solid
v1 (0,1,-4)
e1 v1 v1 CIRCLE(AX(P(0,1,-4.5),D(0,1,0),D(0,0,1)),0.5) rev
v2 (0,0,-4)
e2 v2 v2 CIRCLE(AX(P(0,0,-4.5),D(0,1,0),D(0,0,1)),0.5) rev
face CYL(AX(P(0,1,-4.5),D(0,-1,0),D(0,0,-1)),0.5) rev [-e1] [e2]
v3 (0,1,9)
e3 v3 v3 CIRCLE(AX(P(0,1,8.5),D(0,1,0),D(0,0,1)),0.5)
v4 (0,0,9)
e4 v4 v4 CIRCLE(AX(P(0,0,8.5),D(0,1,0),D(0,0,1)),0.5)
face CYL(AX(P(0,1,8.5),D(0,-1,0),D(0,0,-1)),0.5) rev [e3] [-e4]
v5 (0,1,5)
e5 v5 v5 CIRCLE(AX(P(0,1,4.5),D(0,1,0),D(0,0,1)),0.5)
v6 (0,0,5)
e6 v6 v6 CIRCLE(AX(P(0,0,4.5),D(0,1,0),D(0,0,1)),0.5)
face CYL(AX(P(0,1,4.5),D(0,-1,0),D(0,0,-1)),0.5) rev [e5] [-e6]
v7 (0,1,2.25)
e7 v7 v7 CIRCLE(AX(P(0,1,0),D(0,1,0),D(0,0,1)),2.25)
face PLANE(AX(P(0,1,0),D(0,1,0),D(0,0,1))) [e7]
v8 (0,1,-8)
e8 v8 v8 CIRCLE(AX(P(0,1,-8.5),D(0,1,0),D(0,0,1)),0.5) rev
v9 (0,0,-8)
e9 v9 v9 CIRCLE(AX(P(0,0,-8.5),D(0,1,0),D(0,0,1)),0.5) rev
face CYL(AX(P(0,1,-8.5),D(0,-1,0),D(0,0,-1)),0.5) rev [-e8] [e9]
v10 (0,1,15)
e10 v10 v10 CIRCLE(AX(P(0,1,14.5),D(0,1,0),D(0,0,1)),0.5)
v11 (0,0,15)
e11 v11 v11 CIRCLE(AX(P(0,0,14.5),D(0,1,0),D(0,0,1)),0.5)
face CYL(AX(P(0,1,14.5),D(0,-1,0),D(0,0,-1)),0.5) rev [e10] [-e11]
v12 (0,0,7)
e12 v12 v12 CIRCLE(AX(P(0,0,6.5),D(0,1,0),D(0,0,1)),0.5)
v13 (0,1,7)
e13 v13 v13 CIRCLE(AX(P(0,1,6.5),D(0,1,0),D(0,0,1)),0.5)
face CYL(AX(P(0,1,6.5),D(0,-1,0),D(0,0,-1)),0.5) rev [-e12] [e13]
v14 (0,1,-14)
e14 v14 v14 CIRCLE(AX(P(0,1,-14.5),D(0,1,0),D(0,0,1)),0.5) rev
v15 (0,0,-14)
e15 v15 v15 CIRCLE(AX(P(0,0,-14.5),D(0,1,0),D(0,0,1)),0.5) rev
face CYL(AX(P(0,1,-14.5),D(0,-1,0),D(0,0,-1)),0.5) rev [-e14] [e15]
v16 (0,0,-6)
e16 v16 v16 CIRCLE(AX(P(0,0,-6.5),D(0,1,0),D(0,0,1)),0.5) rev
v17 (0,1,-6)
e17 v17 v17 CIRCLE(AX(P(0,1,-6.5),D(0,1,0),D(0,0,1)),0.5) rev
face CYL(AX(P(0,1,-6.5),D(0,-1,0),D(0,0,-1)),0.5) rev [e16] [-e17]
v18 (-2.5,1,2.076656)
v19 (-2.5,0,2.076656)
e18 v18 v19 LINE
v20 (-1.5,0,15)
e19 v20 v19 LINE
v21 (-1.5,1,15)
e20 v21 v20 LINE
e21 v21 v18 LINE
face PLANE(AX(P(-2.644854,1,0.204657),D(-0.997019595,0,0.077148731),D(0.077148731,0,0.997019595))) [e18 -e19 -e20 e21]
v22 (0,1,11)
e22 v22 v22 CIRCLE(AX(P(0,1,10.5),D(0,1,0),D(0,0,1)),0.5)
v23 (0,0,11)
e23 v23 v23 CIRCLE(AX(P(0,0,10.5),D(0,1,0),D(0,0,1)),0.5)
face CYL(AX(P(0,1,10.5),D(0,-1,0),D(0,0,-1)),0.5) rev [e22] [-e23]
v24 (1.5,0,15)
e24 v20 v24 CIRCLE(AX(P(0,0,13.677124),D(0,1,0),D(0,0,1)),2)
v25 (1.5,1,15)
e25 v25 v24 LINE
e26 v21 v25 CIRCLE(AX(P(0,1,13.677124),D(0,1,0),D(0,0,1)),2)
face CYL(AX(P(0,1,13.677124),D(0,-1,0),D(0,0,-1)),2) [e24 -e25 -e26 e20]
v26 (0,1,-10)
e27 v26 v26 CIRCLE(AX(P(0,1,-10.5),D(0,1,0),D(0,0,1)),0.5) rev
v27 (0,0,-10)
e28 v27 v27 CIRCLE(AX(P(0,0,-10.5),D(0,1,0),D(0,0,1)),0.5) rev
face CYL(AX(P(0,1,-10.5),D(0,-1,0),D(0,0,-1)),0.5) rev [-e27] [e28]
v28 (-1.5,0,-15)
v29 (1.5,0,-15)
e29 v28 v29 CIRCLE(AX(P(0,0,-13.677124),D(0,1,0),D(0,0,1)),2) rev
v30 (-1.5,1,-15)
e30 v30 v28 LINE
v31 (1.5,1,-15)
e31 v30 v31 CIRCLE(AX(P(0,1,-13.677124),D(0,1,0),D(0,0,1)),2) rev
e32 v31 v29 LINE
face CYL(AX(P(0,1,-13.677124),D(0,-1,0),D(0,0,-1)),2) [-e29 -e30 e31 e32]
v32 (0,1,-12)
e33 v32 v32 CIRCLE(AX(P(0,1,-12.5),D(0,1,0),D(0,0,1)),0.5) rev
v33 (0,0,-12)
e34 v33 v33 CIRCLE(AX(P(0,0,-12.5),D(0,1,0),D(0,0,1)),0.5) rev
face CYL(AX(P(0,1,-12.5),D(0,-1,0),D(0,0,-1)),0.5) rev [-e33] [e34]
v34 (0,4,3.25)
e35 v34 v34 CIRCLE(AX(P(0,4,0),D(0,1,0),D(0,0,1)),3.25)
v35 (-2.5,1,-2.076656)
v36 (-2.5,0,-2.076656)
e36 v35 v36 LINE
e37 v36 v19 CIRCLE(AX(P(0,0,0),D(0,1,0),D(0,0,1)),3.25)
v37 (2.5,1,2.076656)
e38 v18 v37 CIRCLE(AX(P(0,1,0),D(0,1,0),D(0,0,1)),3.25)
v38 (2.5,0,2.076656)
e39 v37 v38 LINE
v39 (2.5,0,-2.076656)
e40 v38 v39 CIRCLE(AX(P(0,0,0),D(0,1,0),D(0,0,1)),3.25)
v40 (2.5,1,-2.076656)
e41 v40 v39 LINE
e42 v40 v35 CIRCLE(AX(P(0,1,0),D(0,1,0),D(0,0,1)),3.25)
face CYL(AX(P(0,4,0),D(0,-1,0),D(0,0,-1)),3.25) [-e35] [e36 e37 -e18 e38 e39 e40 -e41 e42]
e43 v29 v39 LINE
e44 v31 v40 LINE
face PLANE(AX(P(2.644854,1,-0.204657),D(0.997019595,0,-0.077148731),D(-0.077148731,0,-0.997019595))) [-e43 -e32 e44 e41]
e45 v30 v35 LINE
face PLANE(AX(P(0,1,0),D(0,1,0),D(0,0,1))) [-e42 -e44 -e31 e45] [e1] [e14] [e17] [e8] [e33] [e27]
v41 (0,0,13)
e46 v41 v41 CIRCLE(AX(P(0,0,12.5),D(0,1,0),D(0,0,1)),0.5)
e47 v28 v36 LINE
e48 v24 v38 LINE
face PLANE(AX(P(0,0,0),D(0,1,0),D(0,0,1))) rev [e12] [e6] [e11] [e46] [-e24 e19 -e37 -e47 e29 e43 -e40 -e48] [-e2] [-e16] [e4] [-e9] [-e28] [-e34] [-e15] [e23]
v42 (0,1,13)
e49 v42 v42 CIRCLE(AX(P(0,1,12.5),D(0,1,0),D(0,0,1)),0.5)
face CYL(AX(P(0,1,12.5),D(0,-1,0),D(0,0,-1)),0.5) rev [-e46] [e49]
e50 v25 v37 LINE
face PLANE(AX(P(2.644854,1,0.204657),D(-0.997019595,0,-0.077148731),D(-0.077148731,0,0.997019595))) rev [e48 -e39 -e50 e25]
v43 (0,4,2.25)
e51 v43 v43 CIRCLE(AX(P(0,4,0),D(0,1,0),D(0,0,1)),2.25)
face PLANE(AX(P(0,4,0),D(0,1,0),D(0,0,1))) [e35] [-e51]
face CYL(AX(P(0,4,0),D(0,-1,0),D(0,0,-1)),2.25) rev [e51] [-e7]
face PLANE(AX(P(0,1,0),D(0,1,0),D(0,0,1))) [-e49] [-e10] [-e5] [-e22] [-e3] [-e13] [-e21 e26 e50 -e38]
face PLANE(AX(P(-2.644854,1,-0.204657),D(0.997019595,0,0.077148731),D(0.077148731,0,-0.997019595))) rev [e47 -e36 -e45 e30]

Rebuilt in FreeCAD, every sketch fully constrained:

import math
import FreeCAD as App
import Part
import Sketcher
from FreeCAD import Vector
Q = App.Units.Quantity

doc = App.newDocument("Part")
body = doc.addObject("PartDesign::Body", "Body")

# Sketch on XZ plane
sketch1 = body.newObject("Sketcher::SketchObject", "Sketch")
sketch1.AttachmentSupport = (doc.getObject("XZ_Plane"), [""])
sketch1.MapMode = "FlatFace"
sketch1.addGeometry(Part.Circle(Vector(0, 0, 0), Vector(0, 0, 1), 3.2), False)
sketch1.addGeometry(Part.Circle(Vector(0, 0, 0), Vector(0, 0, 1), 2.2), False)
sketch1.addConstraint(Sketcher.Constraint("Coincident", 0, 3, -1, 1))
sketch1.addConstraint(Sketcher.Constraint("Coincident", 1, 3, -1, 1))
sketch1.addConstraint(Sketcher.Constraint("Diameter", 0, Q("6.5 mm")))
sketch1.addConstraint(Sketcher.Constraint("Diameter", 1, Q("4.5 mm")))
pad1 = body.newObject("PartDesign::Pad", "Pad")
pad1.Profile = sketch1
pad1.Length = 4
pad1.Reversed = True

# Sketch on XZ plane
sketch2 = body.newObject("Sketcher::SketchObject", "Sketch001")
sketch2.AttachmentSupport = (doc.getObject("XZ_Plane"), [""])
sketch2.MapMode = "FlatFace"
sketch2.addGeometry(Part.Circle(Vector(0, 0, 0), Vector(0, 0, 1), 2.2), False)
sketch2.addConstraint(Sketcher.Constraint("Coincident", 0, 3, -1, 1))
sketch2.addConstraint(Sketcher.Constraint("Diameter", 0, Q("4.5 mm")))
pad2 = body.newObject("PartDesign::Pad", "Pad001")
pad2.Profile = sketch2
pad2.Length = 1
pad2.Reversed = True

# Sketch on XZ plane
sketch3 = body.newObject("Sketcher::SketchObject", "Sketch002")
sketch3.AttachmentSupport = (doc.getObject("XZ_Plane"), [""])
sketch3.MapMode = "FlatFace"
sketch3.addGeometry(Part.ArcOfCircle(Part.Circle(Vector(0, -13.7, 0), Vector(0, 0, 1), 2), math.radians(-139), math.radians(-41)), False)
sketch3.addGeometry(Part.LineSegment(Vector(-1.5, -15, 0), Vector(-2.5, -2.1, 0)), False)
sketch3.addGeometry(Part.ArcOfCircle(Part.Circle(Vector(0, 0, 0), Vector(0, 0, 1), 3.2), math.radians(-140), math.radians(-40)), False)
sketch3.addGeometry(Part.LineSegment(Vector(2.5, -2.1, 0), Vector(1.5, -15, 0)), False)
sketch3.addGeometry(Part.Circle(Vector(0, -4.5, 0), Vector(0, 0, 1), 0.5), False)
sketch3.addGeometry(Part.Circle(Vector(0, -6.5, 0), Vector(0, 0, 1), 0.5), False)
sketch3.addGeometry(Part.Circle(Vector(0, -8.5, 0), Vector(0, 0, 1), 0.5), False)
sketch3.addGeometry(Part.Circle(Vector(0, -10.5, 0), Vector(0, 0, 1), 0.5), False)
sketch3.addGeometry(Part.Circle(Vector(0, -12.5, 0), Vector(0, 0, 1), 0.5), False)
sketch3.addGeometry(Part.Circle(Vector(0, -14.5, 0), Vector(0, 0, 1), 0.5), False)
sketch3.addConstraint(Sketcher.Constraint("Coincident", 0, 1, 1, 1))
sketch3.addConstraint(Sketcher.Constraint("Coincident", 1, 2, 2, 1))
sketch3.addConstraint(Sketcher.Constraint("Coincident", 2, 2, 3, 1))
sketch3.addConstraint(Sketcher.Constraint("Coincident", 3, 2, 0, 2))
sketch3.addConstraint(Sketcher.Constraint("Coincident", 2, 3, -1, 1))
sketch3.addConstraint(Sketcher.Constraint("Equal", 4, 5))
sketch3.addConstraint(Sketcher.Constraint("Equal", 5, 6))
sketch3.addConstraint(Sketcher.Constraint("Equal", 6, 7))
sketch3.addConstraint(Sketcher.Constraint("Equal", 7, 8))
sketch3.addConstraint(Sketcher.Constraint("Equal", 8, 9))
sketch3.addConstraint(Sketcher.Constraint("Symmetric", 0, 1, 3, 2, -2))
sketch3.addConstraint(Sketcher.Constraint("PointOnObject", 4, 3, -2))
sketch3.addConstraint(Sketcher.Constraint("PointOnObject", 5, 3, -2))
sketch3.addConstraint(Sketcher.Constraint("PointOnObject", 6, 3, -2))
sketch3.addConstraint(Sketcher.Constraint("PointOnObject", 7, 3, -2))
sketch3.addConstraint(Sketcher.Constraint("PointOnObject", 8, 3, -2))
sketch3.addConstraint(Sketcher.Constraint("PointOnObject", 9, 3, -2))
sketch3.addConstraint(Sketcher.Constraint("Horizontal", 1, 2, 2, 2))
sketch3.addConstraint(Sketcher.Constraint("Diameter", 4, Q("1 mm")))
sketch3.addConstraint(Sketcher.Constraint("Radius", 0, Q("2 mm")))
sketch3.addConstraint(Sketcher.Constraint("Radius", 2, Q("3.25 mm")))
sketch3.addConstraint(Sketcher.Constraint("DistanceY", 0, 1, -1, 1, Q("15 mm")))
sketch3.addConstraint(Sketcher.Constraint("DistanceY", 5, 3, 4, 3, Q("2 mm")))
sketch3.addConstraint(Sketcher.Constraint("DistanceY", 6, 3, 5, 3, Q("2 mm")))
sketch3.addConstraint(Sketcher.Constraint("DistanceY", 7, 3, 6, 3, Q("2 mm")))
sketch3.addConstraint(Sketcher.Constraint("DistanceY", 8, 3, 7, 3, Q("2 mm")))
sketch3.addConstraint(Sketcher.Constraint("DistanceY", 9, 3, 8, 3, Q("2 mm")))
sketch3.addConstraint(Sketcher.Constraint("DistanceX", 1, 2, 2, 2, Q("5 mm")))
sketch3.addConstraint(Sketcher.Constraint("DistanceX", 0, 1, 3, 2, Q("3 mm")))
sketch3.addConstraint(Sketcher.Constraint("DistanceY", 4, 3, -1, 1, Q("4.5 mm")))
pad3 = body.newObject("PartDesign::Pad", "Pad002")
pad3.Profile = sketch3
pad3.Length = 1
pad3.Reversed = True

# Sketch on XZ plane
sketch4 = body.newObject("Sketcher::SketchObject", "Sketch003")
sketch4.AttachmentSupport = (doc.getObject("XZ_Plane"), [""])
sketch4.MapMode = "FlatFace"
sketch4.addGeometry(Part.ArcOfCircle(Part.Circle(Vector(0, 0, 0), Vector(0, 0, 1), 3.2), math.radians(40), math.radians(140)), False)
sketch4.addGeometry(Part.LineSegment(Vector(-2.5, 2.1, 0), Vector(-1.5, 15, 0)), False)
sketch4.addGeometry(Part.ArcOfCircle(Part.Circle(Vector(0, 13.7, 0), Vector(0, 0, 1), 2), math.radians(41), math.radians(139)), False)
sketch4.addGeometry(Part.LineSegment(Vector(1.5, 15, 0), Vector(2.5, 2.1, 0)), False)
sketch4.addGeometry(Part.Circle(Vector(0, 14.5, 0), Vector(0, 0, 1), 0.5), False)
sketch4.addGeometry(Part.Circle(Vector(0, 12.5, 0), Vector(0, 0, 1), 0.5), False)
sketch4.addGeometry(Part.Circle(Vector(0, 10.5, 0), Vector(0, 0, 1), 0.5), False)
sketch4.addGeometry(Part.Circle(Vector(0, 8.5, 0), Vector(0, 0, 1), 0.5), False)
sketch4.addGeometry(Part.Circle(Vector(0, 6.5, 0), Vector(0, 0, 1), 0.5), False)
sketch4.addGeometry(Part.Circle(Vector(0, 4.5, 0), Vector(0, 0, 1), 0.5), False)
sketch4.addConstraint(Sketcher.Constraint("Coincident", 0, 2, 1, 1))
sketch4.addConstraint(Sketcher.Constraint("Coincident", 1, 2, 2, 2))
sketch4.addConstraint(Sketcher.Constraint("Coincident", 2, 1, 3, 1))
sketch4.addConstraint(Sketcher.Constraint("Coincident", 3, 2, 0, 1))
sketch4.addConstraint(Sketcher.Constraint("Coincident", 0, 3, -1, 1))
sketch4.addConstraint(Sketcher.Constraint("Equal", 4, 5))
sketch4.addConstraint(Sketcher.Constraint("Equal", 5, 6))
sketch4.addConstraint(Sketcher.Constraint("Equal", 6, 7))
sketch4.addConstraint(Sketcher.Constraint("Equal", 7, 8))
sketch4.addConstraint(Sketcher.Constraint("Equal", 8, 9))
sketch4.addConstraint(Sketcher.Constraint("Symmetric", 1, 2, 2, 1, -2))
sketch4.addConstraint(Sketcher.Constraint("PointOnObject", 4, 3, -2))
sketch4.addConstraint(Sketcher.Constraint("PointOnObject", 5, 3, -2))
sketch4.addConstraint(Sketcher.Constraint("PointOnObject", 6, 3, -2))
sketch4.addConstraint(Sketcher.Constraint("PointOnObject", 7, 3, -2))
sketch4.addConstraint(Sketcher.Constraint("PointOnObject", 8, 3, -2))
sketch4.addConstraint(Sketcher.Constraint("PointOnObject", 9, 3, -2))
sketch4.addConstraint(Sketcher.Constraint("Horizontal", 0, 2, 3, 2))
sketch4.addConstraint(Sketcher.Constraint("Diameter", 4, Q("1 mm")))
sketch4.addConstraint(Sketcher.Constraint("Radius", 2, Q("2 mm")))
sketch4.addConstraint(Sketcher.Constraint("Radius", 0, Q("3.25 mm")))
sketch4.addConstraint(Sketcher.Constraint("DistanceY", -1, 1, 1, 2, Q("15 mm")))
sketch4.addConstraint(Sketcher.Constraint("DistanceY", 5, 3, 4, 3, Q("2 mm")))
sketch4.addConstraint(Sketcher.Constraint("DistanceY", 6, 3, 5, 3, Q("2 mm")))
sketch4.addConstraint(Sketcher.Constraint("DistanceY", 7, 3, 6, 3, Q("2 mm")))
sketch4.addConstraint(Sketcher.Constraint("DistanceY", 8, 3, 7, 3, Q("2 mm")))
sketch4.addConstraint(Sketcher.Constraint("DistanceY", 9, 3, 8, 3, Q("2 mm")))
sketch4.addConstraint(Sketcher.Constraint("DistanceX", 1, 2, 2, 1, Q("3 mm")))
sketch4.addConstraint(Sketcher.Constraint("DistanceX", 0, 2, 3, 2, Q("5 mm")))
sketch4.addConstraint(Sketcher.Constraint("DistanceY", -1, 1, 4, 3, Q("14.5 mm")))
pad4 = body.newObject("PartDesign::Pad", "Pad003")
pad4.Profile = sketch4
pad4.Length = 1
pad4.Reversed = True

doc.recompute()
